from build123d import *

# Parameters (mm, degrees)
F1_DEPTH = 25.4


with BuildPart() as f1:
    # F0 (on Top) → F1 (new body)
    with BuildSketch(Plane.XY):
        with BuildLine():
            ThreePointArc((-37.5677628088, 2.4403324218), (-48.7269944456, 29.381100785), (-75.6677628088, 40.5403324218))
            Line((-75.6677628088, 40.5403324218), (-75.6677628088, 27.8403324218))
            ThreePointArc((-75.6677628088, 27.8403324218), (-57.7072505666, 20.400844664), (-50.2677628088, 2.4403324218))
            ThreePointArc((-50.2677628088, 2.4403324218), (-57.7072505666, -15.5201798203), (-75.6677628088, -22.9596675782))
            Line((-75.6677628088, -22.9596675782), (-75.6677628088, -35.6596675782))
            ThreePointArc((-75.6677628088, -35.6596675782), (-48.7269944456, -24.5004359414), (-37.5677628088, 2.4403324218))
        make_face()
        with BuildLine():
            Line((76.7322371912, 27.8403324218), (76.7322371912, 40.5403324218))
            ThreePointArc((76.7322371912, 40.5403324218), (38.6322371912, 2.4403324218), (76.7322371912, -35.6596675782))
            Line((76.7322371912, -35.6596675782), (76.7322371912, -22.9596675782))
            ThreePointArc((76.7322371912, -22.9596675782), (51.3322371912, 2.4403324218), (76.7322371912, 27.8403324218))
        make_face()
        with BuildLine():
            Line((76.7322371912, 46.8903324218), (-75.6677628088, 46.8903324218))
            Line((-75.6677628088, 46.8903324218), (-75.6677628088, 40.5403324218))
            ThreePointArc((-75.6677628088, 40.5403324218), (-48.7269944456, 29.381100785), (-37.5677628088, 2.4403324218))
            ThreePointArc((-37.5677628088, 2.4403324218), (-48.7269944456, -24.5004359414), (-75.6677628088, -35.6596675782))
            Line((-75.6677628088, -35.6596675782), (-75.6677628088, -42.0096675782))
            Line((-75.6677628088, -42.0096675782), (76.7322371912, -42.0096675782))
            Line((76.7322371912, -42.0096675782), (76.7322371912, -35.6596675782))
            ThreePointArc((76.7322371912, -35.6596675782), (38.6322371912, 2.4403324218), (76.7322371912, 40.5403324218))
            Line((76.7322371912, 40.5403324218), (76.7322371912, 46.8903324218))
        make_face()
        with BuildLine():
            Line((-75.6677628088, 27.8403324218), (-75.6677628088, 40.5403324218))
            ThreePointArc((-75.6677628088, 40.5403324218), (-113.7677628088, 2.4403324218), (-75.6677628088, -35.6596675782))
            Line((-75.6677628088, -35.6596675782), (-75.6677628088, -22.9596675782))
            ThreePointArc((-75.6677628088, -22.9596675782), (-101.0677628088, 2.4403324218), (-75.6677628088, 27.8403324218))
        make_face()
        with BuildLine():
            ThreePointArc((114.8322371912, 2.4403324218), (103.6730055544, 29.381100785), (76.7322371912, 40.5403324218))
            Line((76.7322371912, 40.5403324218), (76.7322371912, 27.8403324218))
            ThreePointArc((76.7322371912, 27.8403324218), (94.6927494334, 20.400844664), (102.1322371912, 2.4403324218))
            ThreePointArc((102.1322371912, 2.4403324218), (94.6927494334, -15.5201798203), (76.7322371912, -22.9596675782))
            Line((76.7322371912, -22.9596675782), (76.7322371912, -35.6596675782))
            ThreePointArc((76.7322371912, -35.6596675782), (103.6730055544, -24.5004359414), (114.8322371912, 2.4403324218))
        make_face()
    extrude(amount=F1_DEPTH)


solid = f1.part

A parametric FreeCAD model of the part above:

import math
import FreeCAD as App
import Part
import Sketcher
from FreeCAD import Vector
Q = App.Units.Quantity

doc = App.newDocument("Part")
params = doc.addObject("Spreadsheet::Sheet", "Params")
for row, (alias, value) in enumerate([
    ("sketch1_radius", "1 in"),
    ("sketch1_radius2", "1.5 in"),
    ("sketch1_width", "6 in"),
    ("sketch1_height", "0.25 in"),
    ("pad1_length", "1 in"),
], start=1):
    params.set(f"A{row}", alias)
    params.set(f"B{row}", "=" + value)
    params.setAlias(f"B{row}", alias)

body = doc.addObject("PartDesign::Body", "Body")

# Sketch on XY plane
sketch1 = body.newObject("Sketcher::SketchObject", "Sketch")
sketch1.AttachmentSupport = (doc.getObject("XY_Plane"), [""])
sketch1.MapMode = "FlatFace"
sketch1.addGeometry(Part.LineSegment(Vector(-76, -36, 0), Vector(-76, -42, 0)), False)
sketch1.addGeometry(Part.LineSegment(Vector(-76, -42, 0), Vector(77, -42, 0)), False)
sketch1.addGeometry(Part.LineSegment(Vector(77, -42, 0), Vector(77, -36, 0)), False)
sketch1.addGeometry(Part.ArcOfCircle(Part.Circle(Vector(77, 2, 0), Vector(0, 0, 1), 38), math.radians(-90), math.radians(0)), False)
sketch1.addGeometry(Part.ArcOfCircle(Part.Circle(Vector(77, 2, 0), Vector(0, 0, 1), 38), math.radians(0), math.radians(90)), False)
sketch1.addGeometry(Part.LineSegment(Vector(77, 41, 0), Vector(77, 47, 0)), False)
sketch1.addGeometry(Part.LineSegment(Vector(77, 47, 0), Vector(-76, 47, 0)), False)
sketch1.addGeometry(Part.LineSegment(Vector(-76, 47, 0), Vector(-76, 41, 0)), False)
sketch1.addGeometry(Part.ArcOfCircle(Part.Circle(Vector(-76, 2, 0), Vector(0, 0, 1), 38), math.radians(90), math.radians(270)), False)
sketch1.addGeometry(Part.ArcOfCircle(Part.Circle(Vector(-76, 2, 0), Vector(0, 0, 1), 25), math.radians(0), math.radians(90)), False)
sketch1.addGeometry(Part.ArcOfCircle(Part.Circle(Vector(-76, 2, 0), Vector(0, 0, 1), 25), math.radians(-90), math.radians(0)), False)
sketch1.addGeometry(Part.ArcOfCircle(Part.Circle(Vector(-76, 2, 0), Vector(0, 0, 1), 25), math.radians(90), math.radians(270)), False)
sketch1.addGeometry(Part.ArcOfCircle(Part.Circle(Vector(77, 2, 0), Vector(0, 0, 1), 25), math.radians(90), math.radians(270)), False)
sketch1.addGeometry(Part.ArcOfCircle(Part.Circle(Vector(77, 2, 0), Vector(0, 0, 1), 25), math.radians(0), math.radians(90)), False)
sketch1.addGeometry(Part.ArcOfCircle(Part.Circle(Vector(77, 2, 0), Vector(0, 0, 1), 25), math.radians(-90), math.radians(0)), False)
sketch1.addConstraint(Sketcher.Constraint("Coincident", 0, 2, 1, 1))
sketch1.addConstraint(Sketcher.Constraint("Coincident", 1, 2, 2, 1))
sketch1.addConstraint(Sketcher.Constraint("Coincident", 2, 2, 3, 1))
sketch1.addConstraint(Sketcher.Constraint("Tangent", 3, 2, 4, 1))
sketch1.addConstraint(Sketcher.Constraint("Coincident", 4, 2, 5, 1))
sketch1.addConstraint(Sketcher.Constraint("Coincident", 5, 2, 6, 1))
sketch1.addConstraint(Sketcher.Constraint("Coincident", 6, 2, 7, 1))
sketch1.addConstraint(Sketcher.Constraint("Coincident", 7, 2, 8, 1))
sketch1.addConstraint(Sketcher.Constraint("Coincident", 8, 2, 0, 1))
sketch1.addConstraint(Sketcher.Constraint("Tangent", 9, 1, 10, 2))
sketch1.addConstraint(Sketcher.Constraint("Tangent", 10, 1, 11, 2))
sketch1.addConstraint(Sketcher.Constraint("Tangent", 11, 1, 9, 2))
sketch1.addConstraint(Sketcher.Constraint("Tangent", 12, 1, 13, 2))
sketch1.addConstraint(Sketcher.Constraint("Tangent", 13, 1, 14, 2))
sketch1.addConstraint(Sketcher.Constraint("Tangent", 14, 1, 12, 2))
sketch1.addConstraint(Sketcher.Constraint("Vertical", 0))
sketch1.addConstraint(Sketcher.Constraint("Horizontal", 1))
sketch1.addConstraint(Sketcher.Constraint("Vertical", 2))
sketch1.addConstraint(Sketcher.Constraint("Vertical", 5))
sketch1.addConstraint(Sketcher.Constraint("Horizontal", 6))
sketch1.addConstraint(Sketcher.Constraint("Vertical", 7))
sketch1.addConstraint(Sketcher.Constraint("Coincident", 9, 3, 8, 3))
sketch1.addConstraint(Sketcher.Constraint("Coincident", 12, 3, 3, 3))
sketch1.addConstraint(Sketcher.Constraint("Equal", 3, 4))
sketch1.addConstraint(Sketcher.Constraint("Equal", 4, 8))
sketch1.addConstraint(Sketcher.Constraint("Equal", 11, 12))
sketch1.addConstraint(Sketcher.Constraint("Horizontal", 4, 3, 8, 3))
sketch1.addConstraint(Sketcher.Constraint("Horizontal", 14, 3, 3, 2))
sketch1.addConstraint(Sketcher.Constraint("Horizontal", 3, 2, 9, 1))
sketch1.addConstraint(Sketcher.Constraint("Horizontal", 9, 1, 13, 1))
sketch1.addConstraint(Sketcher.Constraint("Vertical", 11, 3, 0, 2))
sketch1.addConstraint(Sketcher.Constraint("Vertical", 14, 3, 1, 2))
sketch1.addConstraint(Sketcher.Constraint("Vertical", 2, 2, 4, 2))
sketch1.addConstraint(Sketcher.Constraint("Vertical", 0, 2, 6, 2))
sketch1.addConstraint(Sketcher.Constraint("Vertical", 8, 2, 10, 1))
sketch1.addConstraint(Sketcher.Constraint("Vertical", 10, 1, 11, 1))
sketch1.addConstraint(Sketcher.Constraint("Vertical", 5, 2, 12, 1))
sketch1.addConstraint(Sketcher.Constraint("Vertical", 12, 1, 14, 1))
sketch1.addConstraint(Sketcher.Constraint("Equal", 2, 5))
sketch1.addConstraint(Sketcher.Constraint("Radius", 9, Q("1 in")))
sketch1.addConstraint(Sketcher.Constraint("Radius", 3, Q("1.5 in")))
sketch1.addConstraint(Sketcher.Constraint("DistanceX", 1, 1, 1, 2, Q("6 in")))
sketch1.addConstraint(Sketcher.Constraint("DistanceY", 0, 2, 0, 1, Q("0.25 in")))
sketch1.addConstraint(Sketcher.Constraint("DistanceX", -1, 1, 3, 3, Q("76.732237 mm")))
sketch1.addConstraint(Sketcher.Constraint("DistanceY", -1, 1, 3, 3, Q("2.440332 mm")))
sketch1.setExpression("Constraints[39]", "Params.sketch1_radius")
sketch1.setExpression("Constraints[40]", "Params.sketch1_radius2")
sketch1.setExpression("Constraints[41]", "Params.sketch1_width")
sketch1.setExpression("Constraints[42]", "Params.sketch1_height")
pad1 = body.newObject("PartDesign::Pad", "Pad")
pad1.Profile = sketch1
pad1.setExpression("Length", "Params.pad1_length")

doc.recompute()
